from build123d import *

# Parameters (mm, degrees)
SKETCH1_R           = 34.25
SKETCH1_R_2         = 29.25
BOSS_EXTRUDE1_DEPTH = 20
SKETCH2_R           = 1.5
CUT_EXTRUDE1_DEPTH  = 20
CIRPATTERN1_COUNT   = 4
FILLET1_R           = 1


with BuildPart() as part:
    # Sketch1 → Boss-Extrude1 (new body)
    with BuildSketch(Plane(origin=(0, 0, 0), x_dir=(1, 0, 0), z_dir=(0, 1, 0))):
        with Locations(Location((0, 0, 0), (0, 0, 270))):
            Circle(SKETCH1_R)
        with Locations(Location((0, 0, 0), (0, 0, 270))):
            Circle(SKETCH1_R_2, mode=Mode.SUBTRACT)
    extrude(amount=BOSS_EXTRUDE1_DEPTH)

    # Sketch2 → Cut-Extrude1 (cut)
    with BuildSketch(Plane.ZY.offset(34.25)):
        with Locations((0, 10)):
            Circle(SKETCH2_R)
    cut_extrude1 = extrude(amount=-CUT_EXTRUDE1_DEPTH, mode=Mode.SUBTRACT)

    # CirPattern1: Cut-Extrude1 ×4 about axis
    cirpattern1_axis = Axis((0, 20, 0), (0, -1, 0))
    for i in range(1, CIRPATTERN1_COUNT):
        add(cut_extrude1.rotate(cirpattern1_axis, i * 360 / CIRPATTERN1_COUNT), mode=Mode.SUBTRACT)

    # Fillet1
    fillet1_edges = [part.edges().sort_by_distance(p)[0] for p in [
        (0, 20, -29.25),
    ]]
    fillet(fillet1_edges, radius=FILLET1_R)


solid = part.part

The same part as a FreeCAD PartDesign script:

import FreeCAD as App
import Part
import Sketcher
Q = App.Units.Quantity


def edges_at(feature, points):
    """Names of the edges that pass closest to the given points."""
    edges = feature.Shape.Edges
    near = lambda p: min(range(len(edges)), key=lambda i: edges[i].distToShape(Part.Vertex(*p))[0])
    return sorted({f"Edge{near(p) + 1}" for p in points})

doc = App.newDocument("Part")
body = doc.addObject("PartDesign::Body", "Body")

# Sketch on XZ plane
sketch1 = doc.addObject("Sketcher::SketchObject", "Sketch")
body.addObject(sketch1)
sketch1.AttachmentSupport = (doc.XZ_Plane, [""])
sketch1.MapMode = "FlatFace"
sketch1.addGeometry([
    Part.Circle(App.Vector(0, 0, 0), App.Vector(0, 0, 1), 34),
    Part.Circle(App.Vector(0, 0, 0), App.Vector(0, 0, 1), 29),
], False)
sketch1.addConstraint([
    Sketcher.Constraint("Coincident", 0, 3, -1, 1),
    Sketcher.Constraint("Coincident", 1, 3, -1, 1),
    Sketcher.Constraint("Diameter", 0, Q("68.5 mm")),
    Sketcher.Constraint("Diameter", 1, Q("58.5 mm")),
])
pad1 = doc.addObject("PartDesign::Pad", "Pad")
body.addObject(pad1)
pad1.Profile = sketch1
pad1.Length = 20
pad1.Reversed = True

# Sketch on YZ plane
sketch2 = doc.addObject("Sketcher::SketchObject", "Sketch001")
body.addObject(sketch2)
sketch2.AttachmentSupport = (doc.YZ_Plane, [""])
sketch2.MapMode = "FlatFace"
sketch2.AttachmentOffset = App.Placement(App.Vector(0, 0, -34.25), App.Rotation())
sketch2.addGeometry(Part.Circle(App.Vector(10, 0, 0), App.Vector(0, 0, 1), 1.5), False)
sketch2.addConstraint([
    Sketcher.Constraint("PointOnObject", 0, 3, -1),
    Sketcher.Constraint("Diameter", 0, Q("3 mm")),
    Sketcher.Constraint("DistanceX", -1, 1, 0, 3, Q("10 mm")),
])
pocket1 = doc.addObject("PartDesign::Pocket", "Pocket")
body.addObject(pocket1)
pocket1.Profile = sketch2
pocket1.Length = 20
pocket1.Reversed = True
doc.recompute()

polarpattern = doc.addObject("PartDesign::PolarPattern", "PolarPattern")
body.addObject(polarpattern)
polarpattern.Originals = [pocket1]
polarpattern.Axis = (doc.Y_Axis, [""])
polarpattern.Angle = 360
polarpattern.Occurrences = 4
body.Tip = polarpattern
doc.recompute()

fillet = doc.addObject("PartDesign::Fillet", "Fillet")
body.addObject(fillet)
fillet.Base = (polarpattern, edges_at(polarpattern, [(0, 20, -29.25)]))
fillet.Radius = 1

doc.recompute()
